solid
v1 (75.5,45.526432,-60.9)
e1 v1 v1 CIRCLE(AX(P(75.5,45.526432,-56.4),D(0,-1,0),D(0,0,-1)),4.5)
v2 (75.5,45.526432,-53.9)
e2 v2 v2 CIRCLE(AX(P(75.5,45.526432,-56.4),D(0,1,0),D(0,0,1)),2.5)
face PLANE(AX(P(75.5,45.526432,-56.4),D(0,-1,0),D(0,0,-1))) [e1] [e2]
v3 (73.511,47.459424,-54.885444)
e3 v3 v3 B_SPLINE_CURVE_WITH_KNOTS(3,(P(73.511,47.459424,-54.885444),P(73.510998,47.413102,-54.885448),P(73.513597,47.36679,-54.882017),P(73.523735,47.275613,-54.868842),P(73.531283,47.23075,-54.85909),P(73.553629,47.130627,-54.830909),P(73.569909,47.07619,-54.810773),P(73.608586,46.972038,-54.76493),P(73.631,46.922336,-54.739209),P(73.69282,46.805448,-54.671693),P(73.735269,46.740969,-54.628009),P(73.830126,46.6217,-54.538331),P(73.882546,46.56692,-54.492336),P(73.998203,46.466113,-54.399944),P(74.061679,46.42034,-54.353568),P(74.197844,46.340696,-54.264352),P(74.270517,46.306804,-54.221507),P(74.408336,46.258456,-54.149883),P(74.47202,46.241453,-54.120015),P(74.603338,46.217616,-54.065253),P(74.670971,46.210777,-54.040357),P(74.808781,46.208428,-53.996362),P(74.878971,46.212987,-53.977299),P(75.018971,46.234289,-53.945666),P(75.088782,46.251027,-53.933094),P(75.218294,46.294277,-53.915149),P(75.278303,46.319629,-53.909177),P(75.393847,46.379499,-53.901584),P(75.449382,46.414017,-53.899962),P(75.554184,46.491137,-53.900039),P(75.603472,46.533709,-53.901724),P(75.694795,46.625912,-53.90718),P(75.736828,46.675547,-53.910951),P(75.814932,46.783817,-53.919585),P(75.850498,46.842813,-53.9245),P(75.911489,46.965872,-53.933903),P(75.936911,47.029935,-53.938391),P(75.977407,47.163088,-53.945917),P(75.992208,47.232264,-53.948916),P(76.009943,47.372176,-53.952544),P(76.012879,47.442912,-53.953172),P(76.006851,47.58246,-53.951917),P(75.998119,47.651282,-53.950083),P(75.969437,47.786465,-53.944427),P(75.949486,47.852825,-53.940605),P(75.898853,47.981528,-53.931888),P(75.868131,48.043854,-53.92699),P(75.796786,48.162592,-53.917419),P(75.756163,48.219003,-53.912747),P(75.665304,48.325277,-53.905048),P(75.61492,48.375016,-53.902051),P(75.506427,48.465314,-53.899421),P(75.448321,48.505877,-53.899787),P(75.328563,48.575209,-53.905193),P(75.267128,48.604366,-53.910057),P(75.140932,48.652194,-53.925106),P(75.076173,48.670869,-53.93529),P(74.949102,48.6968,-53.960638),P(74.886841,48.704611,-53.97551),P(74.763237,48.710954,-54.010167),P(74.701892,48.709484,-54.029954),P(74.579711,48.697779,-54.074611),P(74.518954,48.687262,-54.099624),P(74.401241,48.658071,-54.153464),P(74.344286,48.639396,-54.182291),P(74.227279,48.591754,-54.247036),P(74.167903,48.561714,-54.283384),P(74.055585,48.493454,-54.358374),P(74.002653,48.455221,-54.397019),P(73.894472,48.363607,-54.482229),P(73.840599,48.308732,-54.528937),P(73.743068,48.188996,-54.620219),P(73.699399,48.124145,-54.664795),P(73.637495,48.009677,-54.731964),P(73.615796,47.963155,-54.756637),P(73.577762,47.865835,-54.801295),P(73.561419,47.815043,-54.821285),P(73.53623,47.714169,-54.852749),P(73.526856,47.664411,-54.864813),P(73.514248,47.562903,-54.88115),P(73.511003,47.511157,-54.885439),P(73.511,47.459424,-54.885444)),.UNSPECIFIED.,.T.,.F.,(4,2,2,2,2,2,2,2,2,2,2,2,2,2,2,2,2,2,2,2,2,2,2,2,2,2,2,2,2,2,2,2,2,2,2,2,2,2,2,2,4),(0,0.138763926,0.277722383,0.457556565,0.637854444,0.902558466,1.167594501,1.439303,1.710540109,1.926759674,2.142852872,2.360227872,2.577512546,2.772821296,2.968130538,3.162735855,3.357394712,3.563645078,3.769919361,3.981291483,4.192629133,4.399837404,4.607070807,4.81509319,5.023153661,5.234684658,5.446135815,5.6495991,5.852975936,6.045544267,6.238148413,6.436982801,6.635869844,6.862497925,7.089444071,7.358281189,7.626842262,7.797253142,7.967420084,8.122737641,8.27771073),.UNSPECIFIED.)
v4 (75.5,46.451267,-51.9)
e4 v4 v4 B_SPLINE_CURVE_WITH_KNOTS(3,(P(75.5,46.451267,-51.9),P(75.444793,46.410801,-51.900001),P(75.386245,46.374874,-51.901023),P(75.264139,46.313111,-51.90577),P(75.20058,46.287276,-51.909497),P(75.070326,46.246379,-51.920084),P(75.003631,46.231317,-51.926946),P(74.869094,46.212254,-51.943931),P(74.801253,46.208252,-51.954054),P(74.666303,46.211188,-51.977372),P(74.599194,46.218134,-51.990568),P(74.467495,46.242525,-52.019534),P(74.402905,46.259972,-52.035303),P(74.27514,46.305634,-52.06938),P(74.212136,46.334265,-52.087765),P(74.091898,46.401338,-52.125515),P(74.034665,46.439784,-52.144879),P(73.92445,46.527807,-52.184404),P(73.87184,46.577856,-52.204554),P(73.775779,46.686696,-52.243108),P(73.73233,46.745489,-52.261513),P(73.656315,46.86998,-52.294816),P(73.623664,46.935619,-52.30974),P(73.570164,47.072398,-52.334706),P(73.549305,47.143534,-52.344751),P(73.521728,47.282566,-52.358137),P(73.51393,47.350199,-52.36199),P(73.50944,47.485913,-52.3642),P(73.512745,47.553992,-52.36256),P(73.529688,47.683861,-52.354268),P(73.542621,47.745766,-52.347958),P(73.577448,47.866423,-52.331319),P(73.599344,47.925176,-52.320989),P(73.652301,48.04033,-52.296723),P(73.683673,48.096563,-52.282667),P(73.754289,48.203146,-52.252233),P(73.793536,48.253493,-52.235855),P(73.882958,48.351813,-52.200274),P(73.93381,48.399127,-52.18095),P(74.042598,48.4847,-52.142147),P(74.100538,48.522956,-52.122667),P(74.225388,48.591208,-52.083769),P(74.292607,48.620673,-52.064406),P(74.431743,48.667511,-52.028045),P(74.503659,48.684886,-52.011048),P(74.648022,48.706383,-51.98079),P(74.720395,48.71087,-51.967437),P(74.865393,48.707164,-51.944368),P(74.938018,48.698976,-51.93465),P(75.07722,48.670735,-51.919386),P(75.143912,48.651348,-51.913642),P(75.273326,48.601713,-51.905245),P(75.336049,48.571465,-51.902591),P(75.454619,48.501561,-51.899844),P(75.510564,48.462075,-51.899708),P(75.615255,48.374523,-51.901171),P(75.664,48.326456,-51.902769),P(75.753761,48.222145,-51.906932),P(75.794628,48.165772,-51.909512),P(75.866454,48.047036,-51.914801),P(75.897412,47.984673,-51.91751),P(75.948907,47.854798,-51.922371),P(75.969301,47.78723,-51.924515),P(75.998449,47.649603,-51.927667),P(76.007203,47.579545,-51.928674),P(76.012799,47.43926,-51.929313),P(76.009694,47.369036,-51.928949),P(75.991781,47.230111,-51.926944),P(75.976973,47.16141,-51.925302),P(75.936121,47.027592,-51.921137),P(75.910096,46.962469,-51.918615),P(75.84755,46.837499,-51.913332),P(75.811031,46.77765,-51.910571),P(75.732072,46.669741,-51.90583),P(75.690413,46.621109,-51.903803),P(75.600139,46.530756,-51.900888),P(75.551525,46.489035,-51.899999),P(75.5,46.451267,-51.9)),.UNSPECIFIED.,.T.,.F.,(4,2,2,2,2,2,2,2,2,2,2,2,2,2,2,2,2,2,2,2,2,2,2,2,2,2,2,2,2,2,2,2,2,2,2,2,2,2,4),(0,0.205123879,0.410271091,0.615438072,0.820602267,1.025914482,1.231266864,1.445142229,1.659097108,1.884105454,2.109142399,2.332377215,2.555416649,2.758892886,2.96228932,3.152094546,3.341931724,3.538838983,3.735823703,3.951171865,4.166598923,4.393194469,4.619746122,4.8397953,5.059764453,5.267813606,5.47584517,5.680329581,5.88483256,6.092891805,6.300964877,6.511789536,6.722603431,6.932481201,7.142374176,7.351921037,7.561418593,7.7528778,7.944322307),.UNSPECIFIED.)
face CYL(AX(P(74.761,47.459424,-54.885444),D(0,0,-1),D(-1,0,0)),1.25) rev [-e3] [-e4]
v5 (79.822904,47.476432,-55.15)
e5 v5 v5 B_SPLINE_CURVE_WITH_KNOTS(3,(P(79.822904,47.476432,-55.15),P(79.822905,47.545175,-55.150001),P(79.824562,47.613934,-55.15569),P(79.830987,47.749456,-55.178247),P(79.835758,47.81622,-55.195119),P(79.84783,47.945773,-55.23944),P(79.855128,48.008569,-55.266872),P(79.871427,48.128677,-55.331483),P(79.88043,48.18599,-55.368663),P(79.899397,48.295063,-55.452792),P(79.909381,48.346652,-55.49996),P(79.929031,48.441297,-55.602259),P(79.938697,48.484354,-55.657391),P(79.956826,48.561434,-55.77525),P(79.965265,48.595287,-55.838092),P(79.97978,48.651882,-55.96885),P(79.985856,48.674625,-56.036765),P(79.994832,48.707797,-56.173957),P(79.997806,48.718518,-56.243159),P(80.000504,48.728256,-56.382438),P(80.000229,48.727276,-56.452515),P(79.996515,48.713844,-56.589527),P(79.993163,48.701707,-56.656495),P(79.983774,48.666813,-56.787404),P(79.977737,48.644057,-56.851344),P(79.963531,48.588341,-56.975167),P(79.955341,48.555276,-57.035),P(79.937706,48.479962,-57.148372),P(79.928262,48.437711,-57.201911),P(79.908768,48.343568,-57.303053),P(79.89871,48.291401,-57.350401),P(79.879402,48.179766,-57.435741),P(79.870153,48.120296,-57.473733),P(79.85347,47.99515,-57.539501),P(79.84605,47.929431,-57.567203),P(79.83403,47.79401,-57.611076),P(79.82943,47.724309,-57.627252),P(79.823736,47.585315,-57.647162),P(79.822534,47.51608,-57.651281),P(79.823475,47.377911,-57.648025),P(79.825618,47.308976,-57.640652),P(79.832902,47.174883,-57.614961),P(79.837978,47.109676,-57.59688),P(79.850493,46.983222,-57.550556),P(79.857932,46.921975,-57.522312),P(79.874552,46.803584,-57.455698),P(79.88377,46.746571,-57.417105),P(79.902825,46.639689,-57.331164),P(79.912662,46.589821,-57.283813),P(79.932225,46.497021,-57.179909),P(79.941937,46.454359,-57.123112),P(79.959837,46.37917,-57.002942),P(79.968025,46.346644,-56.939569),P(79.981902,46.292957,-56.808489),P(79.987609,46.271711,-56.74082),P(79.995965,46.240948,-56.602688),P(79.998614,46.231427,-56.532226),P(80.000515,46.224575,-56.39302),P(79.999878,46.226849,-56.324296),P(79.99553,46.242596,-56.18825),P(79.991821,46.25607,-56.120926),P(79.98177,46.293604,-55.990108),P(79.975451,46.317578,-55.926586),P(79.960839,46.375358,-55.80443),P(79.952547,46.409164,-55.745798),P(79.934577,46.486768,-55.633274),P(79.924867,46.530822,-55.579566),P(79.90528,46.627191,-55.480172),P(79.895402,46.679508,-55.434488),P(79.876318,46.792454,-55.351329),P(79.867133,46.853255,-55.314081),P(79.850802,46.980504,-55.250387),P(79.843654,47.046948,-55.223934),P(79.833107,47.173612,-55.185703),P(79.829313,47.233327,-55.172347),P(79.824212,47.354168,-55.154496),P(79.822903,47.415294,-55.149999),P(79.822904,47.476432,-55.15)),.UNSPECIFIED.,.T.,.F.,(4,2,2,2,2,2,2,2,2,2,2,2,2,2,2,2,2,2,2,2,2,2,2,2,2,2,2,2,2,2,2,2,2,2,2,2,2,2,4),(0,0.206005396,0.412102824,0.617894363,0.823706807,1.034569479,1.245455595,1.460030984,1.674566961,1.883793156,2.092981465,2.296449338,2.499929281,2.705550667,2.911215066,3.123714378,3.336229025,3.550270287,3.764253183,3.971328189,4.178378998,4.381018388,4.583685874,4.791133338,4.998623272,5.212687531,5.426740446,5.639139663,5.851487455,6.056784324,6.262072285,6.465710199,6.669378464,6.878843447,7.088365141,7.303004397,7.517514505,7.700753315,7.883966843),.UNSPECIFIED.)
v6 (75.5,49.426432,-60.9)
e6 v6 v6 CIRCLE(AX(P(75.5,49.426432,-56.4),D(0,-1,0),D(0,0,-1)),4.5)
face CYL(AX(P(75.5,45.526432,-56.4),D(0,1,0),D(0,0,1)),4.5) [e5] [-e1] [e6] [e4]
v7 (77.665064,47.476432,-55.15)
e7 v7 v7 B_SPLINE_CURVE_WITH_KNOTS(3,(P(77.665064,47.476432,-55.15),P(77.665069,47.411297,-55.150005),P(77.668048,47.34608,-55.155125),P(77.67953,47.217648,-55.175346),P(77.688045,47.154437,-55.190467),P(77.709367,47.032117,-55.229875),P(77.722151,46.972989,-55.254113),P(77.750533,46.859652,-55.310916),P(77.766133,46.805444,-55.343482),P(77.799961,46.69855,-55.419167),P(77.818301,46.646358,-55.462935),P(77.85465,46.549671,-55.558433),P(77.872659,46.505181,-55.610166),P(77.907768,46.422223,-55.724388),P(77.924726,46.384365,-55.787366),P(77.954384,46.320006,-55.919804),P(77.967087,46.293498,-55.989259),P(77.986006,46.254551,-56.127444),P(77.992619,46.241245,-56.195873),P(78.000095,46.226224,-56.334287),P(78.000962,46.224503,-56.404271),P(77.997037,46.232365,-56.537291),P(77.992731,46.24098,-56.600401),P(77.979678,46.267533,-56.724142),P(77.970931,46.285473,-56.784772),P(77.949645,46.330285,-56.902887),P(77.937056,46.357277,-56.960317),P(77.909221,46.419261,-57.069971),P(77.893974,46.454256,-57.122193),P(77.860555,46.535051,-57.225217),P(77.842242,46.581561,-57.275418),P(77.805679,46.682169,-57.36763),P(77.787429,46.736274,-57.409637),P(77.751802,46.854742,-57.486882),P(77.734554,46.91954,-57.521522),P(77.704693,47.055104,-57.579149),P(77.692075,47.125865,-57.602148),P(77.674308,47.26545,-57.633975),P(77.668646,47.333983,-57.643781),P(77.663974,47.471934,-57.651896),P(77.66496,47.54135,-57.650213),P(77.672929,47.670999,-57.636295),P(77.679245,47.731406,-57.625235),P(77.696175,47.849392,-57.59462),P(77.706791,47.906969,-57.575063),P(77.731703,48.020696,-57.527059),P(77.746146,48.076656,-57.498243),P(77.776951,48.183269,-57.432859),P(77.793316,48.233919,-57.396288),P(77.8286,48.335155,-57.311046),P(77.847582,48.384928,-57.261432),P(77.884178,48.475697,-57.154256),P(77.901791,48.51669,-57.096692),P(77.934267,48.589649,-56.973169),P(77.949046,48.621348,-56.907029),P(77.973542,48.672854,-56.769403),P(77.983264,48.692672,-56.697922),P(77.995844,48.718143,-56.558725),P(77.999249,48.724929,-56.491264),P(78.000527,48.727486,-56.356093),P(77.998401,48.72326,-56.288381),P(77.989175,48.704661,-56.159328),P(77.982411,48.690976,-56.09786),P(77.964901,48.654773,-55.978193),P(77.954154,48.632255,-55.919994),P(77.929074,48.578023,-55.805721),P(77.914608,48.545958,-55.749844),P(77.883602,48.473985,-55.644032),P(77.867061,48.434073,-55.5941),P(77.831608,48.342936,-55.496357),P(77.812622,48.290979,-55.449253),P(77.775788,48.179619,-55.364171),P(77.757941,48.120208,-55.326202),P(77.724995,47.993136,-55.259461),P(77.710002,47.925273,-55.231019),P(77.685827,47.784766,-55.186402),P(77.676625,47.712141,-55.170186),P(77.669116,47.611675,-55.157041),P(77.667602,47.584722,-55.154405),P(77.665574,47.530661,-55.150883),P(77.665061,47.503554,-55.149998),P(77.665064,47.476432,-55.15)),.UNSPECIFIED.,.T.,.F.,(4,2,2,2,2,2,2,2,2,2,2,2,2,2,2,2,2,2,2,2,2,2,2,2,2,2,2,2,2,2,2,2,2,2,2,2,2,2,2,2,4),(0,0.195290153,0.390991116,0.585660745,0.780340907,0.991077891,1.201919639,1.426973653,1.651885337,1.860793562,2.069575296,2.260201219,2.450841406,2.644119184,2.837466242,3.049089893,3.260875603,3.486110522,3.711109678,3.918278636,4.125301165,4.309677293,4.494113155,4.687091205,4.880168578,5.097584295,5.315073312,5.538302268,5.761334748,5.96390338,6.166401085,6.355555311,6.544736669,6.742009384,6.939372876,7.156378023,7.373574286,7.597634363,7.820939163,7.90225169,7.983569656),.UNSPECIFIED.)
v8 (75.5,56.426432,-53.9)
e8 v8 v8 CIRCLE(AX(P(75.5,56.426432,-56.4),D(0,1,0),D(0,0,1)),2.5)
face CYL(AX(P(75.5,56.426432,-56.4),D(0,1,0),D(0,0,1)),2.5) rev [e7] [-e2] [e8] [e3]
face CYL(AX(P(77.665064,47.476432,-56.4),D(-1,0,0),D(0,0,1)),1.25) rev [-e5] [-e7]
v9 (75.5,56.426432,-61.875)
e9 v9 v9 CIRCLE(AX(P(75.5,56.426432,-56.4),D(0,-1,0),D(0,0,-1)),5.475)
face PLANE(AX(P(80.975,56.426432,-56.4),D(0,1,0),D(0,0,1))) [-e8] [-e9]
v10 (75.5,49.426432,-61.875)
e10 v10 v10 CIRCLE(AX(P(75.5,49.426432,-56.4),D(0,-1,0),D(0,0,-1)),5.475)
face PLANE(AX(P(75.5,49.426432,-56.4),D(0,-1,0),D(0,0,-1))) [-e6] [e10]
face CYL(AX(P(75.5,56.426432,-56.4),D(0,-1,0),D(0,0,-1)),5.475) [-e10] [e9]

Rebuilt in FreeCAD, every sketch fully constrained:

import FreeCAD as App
import Part
import Sketcher
Q = App.Units.Quantity

doc = App.newDocument("Part")
params = doc.addObject("Spreadsheet::Sheet", "Params")
for row, (alias, value) in enumerate([
    ("sketch1_height", "7 mm"),
    ("revolution_angle", "360 deg"),
    ("sketch2_diameter", "9 mm"),
    ("pad1_length", "3.9 mm"),
    ("sketch3_diameter", "5 mm"),
    ("hole_diameter", "5 mm"),
    ("hole_depth", "10.9 mm"),
    ("sketch4_diameter", "2.5 mm"),
    ("hole2_diameter", "2.5 mm"),
    ("hole2_depth", "3.309936 mm"),
    ("sketch5_width", "1.25 mm"),
    ("groove_angle", "360 deg"),
], start=1):
    params.set(f"A{row}", alias)
    params.set(f"B{row}", "=" + value)
    params.setAlias(f"B{row}", alias)

body = doc.addObject("PartDesign::Body", "Body")

# Sketch on XY plane
sketch1 = body.newObject("Sketcher::SketchObject", "Sketch")
sketch1.AttachmentSupport = (doc.getObject("XY_Plane"), [""])
sketch1.MapMode = "FlatFace"
sketch1.AttachmentOffset = App.Placement(App.Vector(0, 0, -56.4), App.Rotation())
sketch1.addGeometry(Part.LineSegment(App.Vector(76, 56, 0), App.Vector(76, 49, 0)), False)
sketch1.addGeometry(Part.LineSegment(App.Vector(76, 49, 0), App.Vector(81, 49, 0)), False)
sketch1.addGeometry(Part.LineSegment(App.Vector(81, 49, 0), App.Vector(81, 56, 0)), False)
sketch1.addGeometry(Part.LineSegment(App.Vector(81, 56, 0), App.Vector(76, 56, 0)), False)
sketch1.addGeometry(Part.LineSegment(App.Vector(76, 56, 0), App.Vector(76, 49, 0)), True)  # axis
sketch1.addConstraint(Sketcher.Constraint("Coincident", 0, 2, 1, 1))
sketch1.addConstraint(Sketcher.Constraint("Coincident", 1, 2, 2, 1))
sketch1.addConstraint(Sketcher.Constraint("Coincident", 2, 2, 3, 1))
sketch1.addConstraint(Sketcher.Constraint("Coincident", 3, 2, 0, 1))
sketch1.addConstraint(Sketcher.Constraint("Vertical", 0))
sketch1.addConstraint(Sketcher.Constraint("Horizontal", 1))
sketch1.addConstraint(Sketcher.Constraint("Vertical", 2))
sketch1.addConstraint(Sketcher.Constraint("Horizontal", 3))
sketch1.addConstraint(Sketcher.Constraint("Vertical", 4))
sketch1.addConstraint(Sketcher.Constraint("Coincident", 4, 1, 3, 2))
sketch1.addConstraint(Sketcher.Constraint("Horizontal", 1, 2, 4, 2))
sketch1.addConstraint(Sketcher.Constraint("DistanceY", 0, 2, 0, 1, Q("7 mm")))
sketch1.addConstraint(Sketcher.Constraint("DistanceX", -1, 1, 0, 2, Q("75.5 mm")))
sketch1.addConstraint(Sketcher.Constraint("DistanceX", 1, 1, 1, 2, Q("5.475 mm")))
sketch1.addConstraint(Sketcher.Constraint("DistanceY", -1, 1, 0, 2, Q("49.426432 mm")))
sketch1.setExpression("Constraints[11]", "Params.sketch1_height")
revolution = body.newObject("PartDesign::Revolution", "Revolution")
revolution.Profile = sketch1
revolution.ReferenceAxis = (sketch1, ["Axis0"])
revolution.setExpression("Angle", "Params.revolution_angle")

# Sketch on XZ plane
sketch2 = body.newObject("Sketcher::SketchObject", "Sketch001")
sketch2.AttachmentSupport = (doc.getObject("XZ_Plane"), [""])
sketch2.MapMode = "FlatFace"
sketch2.AttachmentOffset = App.Placement(App.Vector(0, 0, -49.426432), App.Rotation())
sketch2.addGeometry(Part.Circle(App.Vector(75.5, -56.4, 0), App.Vector(0, 0, 1), 4.5), False)
sketch2.addConstraint(Sketcher.Constraint("Diameter", 0, Q("9 mm")))
sketch2.addConstraint(Sketcher.Constraint("DistanceX", -1, 1, 0, 3, Q("75.5 mm")))
sketch2.addConstraint(Sketcher.Constraint("DistanceY", 0, 3, -1, 1, Q("56.4 mm")))
sketch2.setExpression("Constraints[0]", "Params.sketch2_diameter")
pad1 = body.newObject("PartDesign::Pad", "Pad")
pad1.Profile = sketch2
pad1.setExpression("Length", "Params.pad1_length")

# Sketch on XZ plane
sketch3 = body.newObject("Sketcher::SketchObject", "Sketch002")
sketch3.AttachmentSupport = (doc.getObject("XZ_Plane"), [""])
sketch3.MapMode = "FlatFace"
sketch3.AttachmentOffset = App.Placement(App.Vector(0, 0, -56.426432), App.Rotation())
sketch3.addGeometry(Part.Circle(App.Vector(75.5, -56.4, 0), App.Vector(0, 0, 1), 2.5), False)
sketch3.addConstraint(Sketcher.Constraint("Diameter", 0, Q("5 mm")))
sketch3.addConstraint(Sketcher.Constraint("DistanceX", -1, 1, 0, 3, Q("75.5 mm")))
sketch3.addConstraint(Sketcher.Constraint("DistanceY", 0, 3, -1, 1, Q("56.4 mm")))
sketch3.setExpression("Constraints[0]", "Params.sketch3_diameter")
doc.recompute()
hole = body.newObject("PartDesign::Hole", "Hole")
hole.Profile = sketch3
hole.ThreadType = "None"
hole.setExpression("Diameter", "Params.hole_diameter")
hole.DepthType = "Dimension"
hole.setExpression("Depth", "Params.hole_depth")
hole.DrillPoint = "Flat"
hole.Reversed = True

# Sketch on YZ plane
sketch4 = body.newObject("Sketcher::SketchObject", "Sketch003")
sketch4.AttachmentSupport = (doc.getObject("YZ_Plane"), [""])
sketch4.MapMode = "FlatFace"
sketch4.AttachmentOffset = App.Placement(App.Vector(0, 0, 77.665064), App.Rotation())
sketch4.addGeometry(Part.Circle(App.Vector(47.5, -56.4, 0), App.Vector(0, 0, 1), 1.2), False)
sketch4.addConstraint(Sketcher.Constraint("Diameter", 0, Q("2.5 mm")))
sketch4.addConstraint(Sketcher.Constraint("DistanceY", 0, 3, -1, 1, Q("56.4 mm")))
sketch4.addConstraint(Sketcher.Constraint("DistanceX", -1, 1, 0, 3, Q("47.476432 mm")))
sketch4.setExpression("Constraints[0]", "Params.sketch4_diameter")
doc.recompute()
hole2 = body.newObject("PartDesign::Hole", "Hole001")
hole2.Profile = sketch4
hole2.ThreadType = "None"
hole2.setExpression("Diameter", "Params.hole2_diameter")
hole2.DepthType = "Dimension"
hole2.setExpression("Depth", "Params.hole2_depth")
hole2.DrillPoint = "Flat"
hole2.Reversed = True

# Sketch on YZ plane
sketch5 = body.newObject("Sketcher::SketchObject", "Sketch004")
sketch5.AttachmentSupport = (doc.getObject("YZ_Plane"), [""])
sketch5.MapMode = "FlatFace"
sketch5.AttachmentOffset = App.Placement(App.Vector(0, 0, 74.761), App.Rotation())
sketch5.addGeometry(Part.LineSegment(App.Vector(47.5, -50.9, 0), App.Vector(47.5, -54.9, 0)), False)
sketch5.addGeometry(Part.LineSegment(App.Vector(47.5, -54.9, 0), App.Vector(48.7, -54.9, 0)), False)
sketch5.addGeometry(Part.LineSegment(App.Vector(48.7, -54.9, 0), App.Vector(48.7, -50.9, 0)), False)
sketch5.addGeometry(Part.LineSegment(App.Vector(48.7, -50.9, 0), App.Vector(47.5, -50.9, 0)), False)
sketch5.addGeometry(Part.LineSegment(App.Vector(47.5, -54.9, 0), App.Vector(47.5, -50.9, 0)), True)  # axis
sketch5.addConstraint(Sketcher.Constraint("Coincident", 0, 2, 1, 1))
sketch5.addConstraint(Sketcher.Constraint("Coincident", 1, 2, 2, 1))
sketch5.addConstraint(Sketcher.Constraint("Coincident", 2, 2, 3, 1))
sketch5.addConstraint(Sketcher.Constraint("Coincident", 3, 2, 0, 1))
sketch5.addConstraint(Sketcher.Constraint("Vertical", 0))
sketch5.addConstraint(Sketcher.Constraint("Horizontal", 1))
sketch5.addConstraint(Sketcher.Constraint("Vertical", 2))
sketch5.addConstraint(Sketcher.Constraint("Horizontal", 3))
sketch5.addConstraint(Sketcher.Constraint("Vertical", 4))
sketch5.addConstraint(Sketcher.Constraint("Coincident", 4, 1, 0, 2))
sketch5.addConstraint(Sketcher.Constraint("Horizontal", 2, 2, 4, 2))
sketch5.addConstraint(Sketcher.Constraint("DistanceX", 1, 1, 1, 2, Q("1.25 mm")))
sketch5.addConstraint(Sketcher.Constraint("DistanceY", 2, 2, -1, 1, Q("50.925 mm")))
sketch5.addConstraint(Sketcher.Constraint("DistanceY", 0, 2, 0, 1, Q("3.960444 mm")))
sketch5.addConstraint(Sketcher.Constraint("DistanceX", -1, 1, 0, 2, Q("47.459424 mm")))
sketch5.setExpression("Constraints[11]", "Params.sketch5_width")
groove = body.newObject("PartDesign::Groove", "Groove")
groove.Profile = sketch5
groove.ReferenceAxis = (sketch5, ["Axis0"])
groove.setExpression("Angle", "Params.groove_angle")

doc.recompute()
